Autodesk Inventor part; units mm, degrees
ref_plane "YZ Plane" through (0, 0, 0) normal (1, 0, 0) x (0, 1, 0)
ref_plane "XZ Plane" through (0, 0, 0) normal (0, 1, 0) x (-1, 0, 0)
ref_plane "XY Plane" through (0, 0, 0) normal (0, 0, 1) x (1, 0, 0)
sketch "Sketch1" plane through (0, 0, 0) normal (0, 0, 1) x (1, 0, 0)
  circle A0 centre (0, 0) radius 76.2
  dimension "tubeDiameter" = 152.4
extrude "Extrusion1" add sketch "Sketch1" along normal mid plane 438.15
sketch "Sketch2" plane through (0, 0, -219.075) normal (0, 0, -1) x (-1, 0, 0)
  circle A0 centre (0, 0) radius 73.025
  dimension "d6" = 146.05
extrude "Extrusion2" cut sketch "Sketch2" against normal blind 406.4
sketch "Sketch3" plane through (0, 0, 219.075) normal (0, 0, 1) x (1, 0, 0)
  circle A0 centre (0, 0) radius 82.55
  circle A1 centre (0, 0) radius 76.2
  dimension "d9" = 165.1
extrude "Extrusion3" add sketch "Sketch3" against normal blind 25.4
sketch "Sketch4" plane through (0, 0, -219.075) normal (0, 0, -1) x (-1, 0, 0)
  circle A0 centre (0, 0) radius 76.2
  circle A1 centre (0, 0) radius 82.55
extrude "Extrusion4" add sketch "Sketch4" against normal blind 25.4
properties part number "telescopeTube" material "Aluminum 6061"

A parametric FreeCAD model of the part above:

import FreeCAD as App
import Part
import Sketcher
Q = App.Units.Quantity

doc = App.newDocument("Part")
body = doc.addObject("PartDesign::Body", "Body")

# Sketch on XY plane
sketch1 = doc.addObject("Sketcher::SketchObject", "Sketch")
body.addObject(sketch1)
sketch1.AttachmentSupport = (doc.XY_Plane, [""])
sketch1.MapMode = "FlatFace"
sketch1.addGeometry(Part.Circle(App.Vector(0, 0, 0), App.Vector(0, 0, 1), 76), False)
sketch1.addConstraint([
    Sketcher.Constraint("Coincident", 0, 3, -1, 1),
    Sketcher.Constraint("Diameter", 0, Q("6 in")),
])
pad1 = doc.addObject("PartDesign::Pad", "Pad")
body.addObject(pad1)
pad1.Profile = sketch1
pad1.Length = Q("17.25 in")
pad1.Midplane = True

# Sketch on XY plane
sketch2 = doc.addObject("Sketcher::SketchObject", "Sketch001")
body.addObject(sketch2)
sketch2.AttachmentSupport = (doc.XY_Plane, [""])
sketch2.MapMode = "FlatFace"
sketch2.AttachmentOffset = App.Placement(App.Vector(0, 0, -8.625 * 25.4), App.Rotation())
sketch2.addGeometry(Part.Circle(App.Vector(0, 0, 0), App.Vector(0, 0, 1), 73), False)
sketch2.addConstraint([
    Sketcher.Constraint("Coincident", 0, 3, -1, 1),
    Sketcher.Constraint("Diameter", 0, Q("5.75 in")),
])
pocket1 = doc.addObject("PartDesign::Pocket", "Pocket")
body.addObject(pocket1)
pocket1.Profile = sketch2
pocket1.Length = Q("16 in")
pocket1.Reversed = True

# Sketch on XY plane
sketch3 = doc.addObject("Sketcher::SketchObject", "Sketch002")
body.addObject(sketch3)
sketch3.AttachmentSupport = (doc.XY_Plane, [""])
sketch3.MapMode = "FlatFace"
sketch3.AttachmentOffset = App.Placement(App.Vector(0, 0, 8.625 * 25.4), App.Rotation())
sketch3.addGeometry([
    Part.Circle(App.Vector(0, 0, 0), App.Vector(0, 0, 1), 83),
    Part.Circle(App.Vector(0, 0, 0), App.Vector(0, 0, 1), 76),
], False)
sketch3.addConstraint([
    Sketcher.Constraint("Coincident", 0, 3, -1, 1),
    Sketcher.Constraint("Coincident", 1, 3, -1, 1),
    Sketcher.Constraint("Diameter", 0, Q("6.5 in")),
    Sketcher.Constraint("Diameter", 1, Q("6 in")),
])
pad2 = doc.addObject("PartDesign::Pad", "Pad001")
body.addObject(pad2)
pad2.Profile = sketch3
pad2.Length = Q("1 in")
pad2.Reversed = True

# Sketch on XY plane
sketch4 = doc.addObject("Sketcher::SketchObject", "Sketch003")
body.addObject(sketch4)
sketch4.AttachmentSupport = (doc.XY_Plane, [""])
sketch4.MapMode = "FlatFace"
sketch4.AttachmentOffset = App.Placement(App.Vector(0, 0, -8.625 * 25.4), App.Rotation())
sketch4.addGeometry([
    Part.Circle(App.Vector(0, 0, 0), App.Vector(0, 0, 1), 83),
    Part.Circle(App.Vector(0, 0, 0), App.Vector(0, 0, 1), 76),
], False)
sketch4.addConstraint([
    Sketcher.Constraint("Coincident", 0, 3, -1, 1),
    Sketcher.Constraint("Coincident", 1, 3, -1, 1),
    Sketcher.Constraint("Diameter", 1, Q("6 in")),
    Sketcher.Constraint("Diameter", 0, Q("6.5 in")),
])
pad3 = doc.addObject("PartDesign::Pad", "Pad002")
body.addObject(pad3)
pad3.Profile = sketch4
pad3.Length = Q("1 in")

doc.recompute()
